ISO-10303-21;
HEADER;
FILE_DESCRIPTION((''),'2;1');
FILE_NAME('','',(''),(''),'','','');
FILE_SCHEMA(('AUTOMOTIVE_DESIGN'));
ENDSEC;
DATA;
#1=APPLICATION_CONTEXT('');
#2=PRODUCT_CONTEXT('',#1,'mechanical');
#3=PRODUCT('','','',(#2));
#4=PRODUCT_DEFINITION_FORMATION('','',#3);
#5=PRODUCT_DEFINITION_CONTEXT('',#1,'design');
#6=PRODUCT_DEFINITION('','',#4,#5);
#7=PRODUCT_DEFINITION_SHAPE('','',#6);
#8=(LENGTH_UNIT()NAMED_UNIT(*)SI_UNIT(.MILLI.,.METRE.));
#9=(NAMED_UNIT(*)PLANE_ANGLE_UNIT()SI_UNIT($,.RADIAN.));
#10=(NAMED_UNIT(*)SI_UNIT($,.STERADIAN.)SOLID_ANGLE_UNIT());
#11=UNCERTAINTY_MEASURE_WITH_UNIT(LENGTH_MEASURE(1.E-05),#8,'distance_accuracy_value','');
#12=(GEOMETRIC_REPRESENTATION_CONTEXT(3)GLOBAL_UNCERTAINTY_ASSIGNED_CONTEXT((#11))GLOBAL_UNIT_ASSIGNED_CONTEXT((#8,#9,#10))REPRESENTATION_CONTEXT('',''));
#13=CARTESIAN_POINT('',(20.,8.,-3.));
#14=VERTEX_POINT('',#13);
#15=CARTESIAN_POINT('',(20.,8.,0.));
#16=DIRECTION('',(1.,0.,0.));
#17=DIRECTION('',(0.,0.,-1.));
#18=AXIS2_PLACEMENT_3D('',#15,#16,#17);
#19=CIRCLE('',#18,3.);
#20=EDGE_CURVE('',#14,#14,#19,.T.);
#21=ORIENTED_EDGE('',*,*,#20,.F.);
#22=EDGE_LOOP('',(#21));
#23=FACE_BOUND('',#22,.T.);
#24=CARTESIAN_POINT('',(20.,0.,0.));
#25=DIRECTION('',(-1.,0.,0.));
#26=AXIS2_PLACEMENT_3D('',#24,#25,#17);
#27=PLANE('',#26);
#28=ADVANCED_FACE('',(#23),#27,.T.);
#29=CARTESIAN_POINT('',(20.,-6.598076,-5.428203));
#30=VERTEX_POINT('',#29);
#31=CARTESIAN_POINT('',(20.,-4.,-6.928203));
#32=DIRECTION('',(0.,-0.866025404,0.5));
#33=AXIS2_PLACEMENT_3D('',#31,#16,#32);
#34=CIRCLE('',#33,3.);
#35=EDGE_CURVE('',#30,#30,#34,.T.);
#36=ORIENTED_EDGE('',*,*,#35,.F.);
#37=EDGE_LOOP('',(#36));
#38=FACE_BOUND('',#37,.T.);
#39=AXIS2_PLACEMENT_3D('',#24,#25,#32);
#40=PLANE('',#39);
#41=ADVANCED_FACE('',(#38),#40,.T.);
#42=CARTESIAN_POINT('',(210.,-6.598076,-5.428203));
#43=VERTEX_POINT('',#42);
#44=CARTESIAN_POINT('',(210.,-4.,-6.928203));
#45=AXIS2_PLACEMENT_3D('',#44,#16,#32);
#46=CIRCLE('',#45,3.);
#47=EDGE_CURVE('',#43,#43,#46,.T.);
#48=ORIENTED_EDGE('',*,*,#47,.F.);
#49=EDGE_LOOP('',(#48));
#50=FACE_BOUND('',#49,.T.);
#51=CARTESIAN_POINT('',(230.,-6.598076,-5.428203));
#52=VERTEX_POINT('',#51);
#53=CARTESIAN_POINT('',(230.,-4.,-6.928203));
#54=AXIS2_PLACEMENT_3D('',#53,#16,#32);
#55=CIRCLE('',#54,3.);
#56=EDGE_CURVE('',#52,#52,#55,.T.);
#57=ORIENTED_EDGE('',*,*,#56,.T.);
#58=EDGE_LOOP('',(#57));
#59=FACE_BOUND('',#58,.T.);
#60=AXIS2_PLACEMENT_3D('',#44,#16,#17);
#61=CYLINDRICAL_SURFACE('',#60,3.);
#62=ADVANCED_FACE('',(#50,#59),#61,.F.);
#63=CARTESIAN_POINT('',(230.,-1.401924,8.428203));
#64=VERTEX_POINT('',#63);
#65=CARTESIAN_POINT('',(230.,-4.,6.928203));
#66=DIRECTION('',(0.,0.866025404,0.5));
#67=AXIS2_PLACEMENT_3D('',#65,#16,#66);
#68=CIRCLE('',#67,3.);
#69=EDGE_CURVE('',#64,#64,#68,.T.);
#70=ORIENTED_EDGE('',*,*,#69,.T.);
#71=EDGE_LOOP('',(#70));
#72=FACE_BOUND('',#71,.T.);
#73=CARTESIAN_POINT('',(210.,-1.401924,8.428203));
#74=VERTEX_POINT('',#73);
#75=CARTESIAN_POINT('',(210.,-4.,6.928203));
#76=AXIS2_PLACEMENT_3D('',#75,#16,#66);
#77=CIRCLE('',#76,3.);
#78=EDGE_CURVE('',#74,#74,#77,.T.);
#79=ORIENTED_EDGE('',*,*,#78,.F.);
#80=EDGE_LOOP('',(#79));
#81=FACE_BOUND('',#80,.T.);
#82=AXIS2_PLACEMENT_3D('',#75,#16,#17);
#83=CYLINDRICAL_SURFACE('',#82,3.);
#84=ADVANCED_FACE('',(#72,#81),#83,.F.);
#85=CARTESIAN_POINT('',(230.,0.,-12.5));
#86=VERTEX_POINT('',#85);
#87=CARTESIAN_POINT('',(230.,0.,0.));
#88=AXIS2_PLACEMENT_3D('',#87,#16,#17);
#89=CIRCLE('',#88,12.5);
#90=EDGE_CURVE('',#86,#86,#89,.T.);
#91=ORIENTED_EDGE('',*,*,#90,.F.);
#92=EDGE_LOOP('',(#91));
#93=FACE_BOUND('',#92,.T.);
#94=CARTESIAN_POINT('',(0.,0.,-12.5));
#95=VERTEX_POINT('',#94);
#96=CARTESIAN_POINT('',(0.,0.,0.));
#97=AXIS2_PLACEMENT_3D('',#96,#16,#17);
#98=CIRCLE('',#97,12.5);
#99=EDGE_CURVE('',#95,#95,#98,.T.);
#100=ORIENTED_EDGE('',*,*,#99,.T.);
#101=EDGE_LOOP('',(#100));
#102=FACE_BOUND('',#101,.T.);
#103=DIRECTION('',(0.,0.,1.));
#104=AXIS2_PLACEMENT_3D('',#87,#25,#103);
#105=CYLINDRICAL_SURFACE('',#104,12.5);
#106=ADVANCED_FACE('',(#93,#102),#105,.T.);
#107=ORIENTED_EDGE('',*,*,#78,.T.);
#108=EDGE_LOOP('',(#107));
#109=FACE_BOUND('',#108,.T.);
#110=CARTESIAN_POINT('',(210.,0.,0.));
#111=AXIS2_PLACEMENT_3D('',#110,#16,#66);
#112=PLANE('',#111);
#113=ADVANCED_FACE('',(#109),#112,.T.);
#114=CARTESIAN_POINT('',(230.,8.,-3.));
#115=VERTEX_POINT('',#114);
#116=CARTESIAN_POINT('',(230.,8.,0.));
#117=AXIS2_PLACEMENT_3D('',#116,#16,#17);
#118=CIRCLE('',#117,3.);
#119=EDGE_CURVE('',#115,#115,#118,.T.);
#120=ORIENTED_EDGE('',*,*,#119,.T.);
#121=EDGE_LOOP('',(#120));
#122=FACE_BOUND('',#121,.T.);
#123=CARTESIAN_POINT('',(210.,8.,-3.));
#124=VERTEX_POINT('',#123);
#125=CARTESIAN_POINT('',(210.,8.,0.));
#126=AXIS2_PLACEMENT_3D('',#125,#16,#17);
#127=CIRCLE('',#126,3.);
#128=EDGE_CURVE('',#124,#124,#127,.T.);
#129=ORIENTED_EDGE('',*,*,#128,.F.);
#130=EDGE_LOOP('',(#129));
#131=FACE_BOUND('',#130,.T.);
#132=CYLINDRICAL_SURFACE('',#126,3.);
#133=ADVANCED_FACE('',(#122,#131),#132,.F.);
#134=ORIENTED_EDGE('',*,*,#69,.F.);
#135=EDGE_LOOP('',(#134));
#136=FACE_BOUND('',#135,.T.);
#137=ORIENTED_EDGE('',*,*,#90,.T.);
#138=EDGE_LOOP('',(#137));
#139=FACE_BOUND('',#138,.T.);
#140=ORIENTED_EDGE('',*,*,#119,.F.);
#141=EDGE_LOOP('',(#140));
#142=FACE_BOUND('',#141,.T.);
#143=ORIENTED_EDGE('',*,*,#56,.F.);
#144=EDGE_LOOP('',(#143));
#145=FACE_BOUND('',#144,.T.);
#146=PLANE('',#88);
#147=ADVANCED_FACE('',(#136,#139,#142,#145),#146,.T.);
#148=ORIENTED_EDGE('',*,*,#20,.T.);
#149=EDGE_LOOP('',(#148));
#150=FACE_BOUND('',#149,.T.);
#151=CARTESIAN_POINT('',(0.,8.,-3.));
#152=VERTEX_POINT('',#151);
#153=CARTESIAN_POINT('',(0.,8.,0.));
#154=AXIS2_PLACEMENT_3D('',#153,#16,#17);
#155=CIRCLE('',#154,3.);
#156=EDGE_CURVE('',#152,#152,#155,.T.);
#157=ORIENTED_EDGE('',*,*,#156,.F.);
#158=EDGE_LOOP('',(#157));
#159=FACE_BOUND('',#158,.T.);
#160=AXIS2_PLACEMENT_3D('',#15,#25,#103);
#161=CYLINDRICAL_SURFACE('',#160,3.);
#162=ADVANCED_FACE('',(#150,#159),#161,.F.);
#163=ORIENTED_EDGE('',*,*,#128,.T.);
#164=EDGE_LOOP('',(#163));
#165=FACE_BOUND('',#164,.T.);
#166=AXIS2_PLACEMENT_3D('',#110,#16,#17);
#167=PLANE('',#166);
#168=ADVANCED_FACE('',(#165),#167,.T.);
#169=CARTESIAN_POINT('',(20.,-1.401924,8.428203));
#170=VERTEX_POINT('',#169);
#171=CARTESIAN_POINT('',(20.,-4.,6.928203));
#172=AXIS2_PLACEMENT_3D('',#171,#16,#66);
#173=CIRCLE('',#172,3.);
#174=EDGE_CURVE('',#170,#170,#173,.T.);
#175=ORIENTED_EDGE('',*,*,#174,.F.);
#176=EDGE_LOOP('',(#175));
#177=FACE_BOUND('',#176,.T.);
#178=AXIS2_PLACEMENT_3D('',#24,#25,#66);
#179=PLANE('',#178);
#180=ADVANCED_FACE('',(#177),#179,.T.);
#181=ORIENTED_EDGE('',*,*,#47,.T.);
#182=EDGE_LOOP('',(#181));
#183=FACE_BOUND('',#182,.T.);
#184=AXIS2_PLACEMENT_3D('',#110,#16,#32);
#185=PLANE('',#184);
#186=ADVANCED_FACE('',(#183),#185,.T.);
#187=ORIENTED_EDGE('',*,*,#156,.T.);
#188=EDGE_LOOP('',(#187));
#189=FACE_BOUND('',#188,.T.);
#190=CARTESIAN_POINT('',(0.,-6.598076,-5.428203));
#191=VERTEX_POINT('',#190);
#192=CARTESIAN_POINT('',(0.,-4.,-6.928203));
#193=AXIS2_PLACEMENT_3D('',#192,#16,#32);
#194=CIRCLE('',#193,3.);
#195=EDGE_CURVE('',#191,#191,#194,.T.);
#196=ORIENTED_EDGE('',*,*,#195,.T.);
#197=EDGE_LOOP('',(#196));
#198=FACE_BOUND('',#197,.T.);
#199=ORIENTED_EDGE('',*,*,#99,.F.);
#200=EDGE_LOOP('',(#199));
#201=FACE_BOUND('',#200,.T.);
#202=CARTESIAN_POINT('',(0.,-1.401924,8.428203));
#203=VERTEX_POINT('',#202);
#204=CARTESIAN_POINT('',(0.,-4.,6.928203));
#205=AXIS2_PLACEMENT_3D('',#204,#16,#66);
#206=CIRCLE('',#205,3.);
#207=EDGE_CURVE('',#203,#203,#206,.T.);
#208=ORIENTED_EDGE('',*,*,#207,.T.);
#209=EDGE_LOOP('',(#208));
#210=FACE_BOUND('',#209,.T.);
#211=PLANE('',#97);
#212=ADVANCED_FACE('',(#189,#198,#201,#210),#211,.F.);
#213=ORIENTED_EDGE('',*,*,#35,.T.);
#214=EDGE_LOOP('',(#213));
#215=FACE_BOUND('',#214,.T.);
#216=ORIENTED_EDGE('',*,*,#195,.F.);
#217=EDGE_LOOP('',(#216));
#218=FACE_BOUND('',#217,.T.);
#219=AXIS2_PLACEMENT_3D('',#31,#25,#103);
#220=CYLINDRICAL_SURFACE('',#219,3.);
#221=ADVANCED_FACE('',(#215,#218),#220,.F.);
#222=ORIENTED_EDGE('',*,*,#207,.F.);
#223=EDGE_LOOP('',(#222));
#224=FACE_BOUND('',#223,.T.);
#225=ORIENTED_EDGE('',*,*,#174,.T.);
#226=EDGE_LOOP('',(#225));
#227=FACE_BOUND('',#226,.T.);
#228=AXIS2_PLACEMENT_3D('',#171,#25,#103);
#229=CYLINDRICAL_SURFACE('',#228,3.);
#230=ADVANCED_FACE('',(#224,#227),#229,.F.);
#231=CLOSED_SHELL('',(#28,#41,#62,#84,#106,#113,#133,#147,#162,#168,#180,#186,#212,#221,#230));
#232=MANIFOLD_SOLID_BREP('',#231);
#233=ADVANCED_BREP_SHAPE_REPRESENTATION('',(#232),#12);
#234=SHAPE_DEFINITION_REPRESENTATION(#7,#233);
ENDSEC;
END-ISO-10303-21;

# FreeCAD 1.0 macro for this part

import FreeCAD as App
import Part
import Sketcher

doc = App.newDocument("Part")
body = doc.addObject("PartDesign::Body", "Body")

# Sketch on YZ plane
sketch1 = body.newObject("Sketcher::SketchObject", "Sketch")
sketch1.AttachmentSupport = (doc.getObject("YZ_Plane"), [""])
sketch1.MapMode = "FlatFace"
sketch1.addGeometry(Part.Circle(App.Vector(0, 0, 0), App.Vector(0, 0, 1), 12.5), False)
sketch1.addConstraint(Sketcher.Constraint("Coincident", 0, 3, -1, 1))
sketch1.addConstraint(Sketcher.Constraint("Diameter", 0, 25.0))
pad1 = body.newObject("PartDesign::Pad", "Pad")
pad1.Profile = sketch1
pad1.Length = 230

# Sketch on YZ plane
sketch2 = body.newObject("Sketcher::SketchObject", "Sketch001")
sketch2.AttachmentSupport = (doc.getObject("YZ_Plane"), [""])
sketch2.MapMode = "FlatFace"
sketch2.AttachmentOffset = App.Placement(App.Vector(0, 0, 230), App.Rotation())
sketch2.addGeometry(Part.Circle(App.Vector(8, 0, 0), App.Vector(0, 0, 1), 3), False)
sketch2.addConstraint(Sketcher.Constraint("PointOnObject", 0, 3, -1))
sketch2.addConstraint(Sketcher.Constraint("Diameter", 0, 6.0))
sketch2.addConstraint(Sketcher.Constraint("DistanceX", -1, 1, 0, 3, 8.0))
pocket1 = body.newObject("PartDesign::Pocket", "Pocket")
pocket1.Profile = sketch2
pocket1.Length = 20
doc.recompute()

polarpattern = body.newObject("PartDesign::PolarPattern", "PolarPattern")
polarpattern.Originals = [pocket1]
polarpattern.Axis = (doc.getObject("X_Axis"), [""])
polarpattern.Angle = 360
polarpattern.Occurrences = 3
body.Tip = polarpattern
doc.recompute()

datumplane = body.newObject("PartDesign::Plane", "DatumPlane")
datumplane.AttachmentSupport = (doc.getObject("YZ_Plane"), [""])
datumplane.MapMode = "FlatFace"
datumplane.AttachmentOffset = App.Placement(App.Vector(0, 0, 115), App.Rotation())
mirrored = body.newObject("PartDesign::Mirrored", "Mirrored")
mirrored.Originals = [pocket1]
mirrored.MirrorPlane = (datumplane, [""])
body.Tip = mirrored

# Sketch on YZ plane
sketch3 = body.newObject("Sketcher::SketchObject", "Sketch002")
sketch3.AttachmentSupport = (doc.getObject("YZ_Plane"), [""])
sketch3.MapMode = "FlatFace"
sketch3.addGeometry(Part.Circle(App.Vector(-4, 6.928203, 0), App.Vector(0, 0, 1), 3), False)
sketch3.addConstraint(Sketcher.Constraint("Diameter", 0, 6.0))
sketch3.addConstraint(Sketcher.Constraint("DistanceX", 0, 3, -1, 1, 4.0))
sketch3.addConstraint(Sketcher.Constraint("DistanceY", -1, 1, 0, 3, 6.928203))
pocket2 = body.newObject("PartDesign::Pocket", "Pocket001")
pocket2.Profile = sketch3
pocket2.Length = 20
pocket2.Reversed = True

# Sketch on YZ plane
sketch4 = body.newObject("Sketcher::SketchObject", "Sketch003")
sketch4.AttachmentSupport = (doc.getObject("YZ_Plane"), [""])
sketch4.MapMode = "FlatFace"
sketch4.addGeometry(Part.Circle(App.Vector(-4, -6.928203, 0), App.Vector(0, 0, 1), 3), False)
sketch4.addConstraint(Sketcher.Constraint("Diameter", 0, 6.0))
sketch4.addConstraint(Sketcher.Constraint("DistanceX", 0, 3, -1, 1, 4.0))
sketch4.addConstraint(Sketcher.Constraint("DistanceY", 0, 3, -1, 1, 6.928203))
pocket3 = body.newObject("PartDesign::Pocket", "Pocket002")
pocket3.Profile = sketch4
pocket3.Length = 20
pocket3.Reversed = True

doc.recompute()
